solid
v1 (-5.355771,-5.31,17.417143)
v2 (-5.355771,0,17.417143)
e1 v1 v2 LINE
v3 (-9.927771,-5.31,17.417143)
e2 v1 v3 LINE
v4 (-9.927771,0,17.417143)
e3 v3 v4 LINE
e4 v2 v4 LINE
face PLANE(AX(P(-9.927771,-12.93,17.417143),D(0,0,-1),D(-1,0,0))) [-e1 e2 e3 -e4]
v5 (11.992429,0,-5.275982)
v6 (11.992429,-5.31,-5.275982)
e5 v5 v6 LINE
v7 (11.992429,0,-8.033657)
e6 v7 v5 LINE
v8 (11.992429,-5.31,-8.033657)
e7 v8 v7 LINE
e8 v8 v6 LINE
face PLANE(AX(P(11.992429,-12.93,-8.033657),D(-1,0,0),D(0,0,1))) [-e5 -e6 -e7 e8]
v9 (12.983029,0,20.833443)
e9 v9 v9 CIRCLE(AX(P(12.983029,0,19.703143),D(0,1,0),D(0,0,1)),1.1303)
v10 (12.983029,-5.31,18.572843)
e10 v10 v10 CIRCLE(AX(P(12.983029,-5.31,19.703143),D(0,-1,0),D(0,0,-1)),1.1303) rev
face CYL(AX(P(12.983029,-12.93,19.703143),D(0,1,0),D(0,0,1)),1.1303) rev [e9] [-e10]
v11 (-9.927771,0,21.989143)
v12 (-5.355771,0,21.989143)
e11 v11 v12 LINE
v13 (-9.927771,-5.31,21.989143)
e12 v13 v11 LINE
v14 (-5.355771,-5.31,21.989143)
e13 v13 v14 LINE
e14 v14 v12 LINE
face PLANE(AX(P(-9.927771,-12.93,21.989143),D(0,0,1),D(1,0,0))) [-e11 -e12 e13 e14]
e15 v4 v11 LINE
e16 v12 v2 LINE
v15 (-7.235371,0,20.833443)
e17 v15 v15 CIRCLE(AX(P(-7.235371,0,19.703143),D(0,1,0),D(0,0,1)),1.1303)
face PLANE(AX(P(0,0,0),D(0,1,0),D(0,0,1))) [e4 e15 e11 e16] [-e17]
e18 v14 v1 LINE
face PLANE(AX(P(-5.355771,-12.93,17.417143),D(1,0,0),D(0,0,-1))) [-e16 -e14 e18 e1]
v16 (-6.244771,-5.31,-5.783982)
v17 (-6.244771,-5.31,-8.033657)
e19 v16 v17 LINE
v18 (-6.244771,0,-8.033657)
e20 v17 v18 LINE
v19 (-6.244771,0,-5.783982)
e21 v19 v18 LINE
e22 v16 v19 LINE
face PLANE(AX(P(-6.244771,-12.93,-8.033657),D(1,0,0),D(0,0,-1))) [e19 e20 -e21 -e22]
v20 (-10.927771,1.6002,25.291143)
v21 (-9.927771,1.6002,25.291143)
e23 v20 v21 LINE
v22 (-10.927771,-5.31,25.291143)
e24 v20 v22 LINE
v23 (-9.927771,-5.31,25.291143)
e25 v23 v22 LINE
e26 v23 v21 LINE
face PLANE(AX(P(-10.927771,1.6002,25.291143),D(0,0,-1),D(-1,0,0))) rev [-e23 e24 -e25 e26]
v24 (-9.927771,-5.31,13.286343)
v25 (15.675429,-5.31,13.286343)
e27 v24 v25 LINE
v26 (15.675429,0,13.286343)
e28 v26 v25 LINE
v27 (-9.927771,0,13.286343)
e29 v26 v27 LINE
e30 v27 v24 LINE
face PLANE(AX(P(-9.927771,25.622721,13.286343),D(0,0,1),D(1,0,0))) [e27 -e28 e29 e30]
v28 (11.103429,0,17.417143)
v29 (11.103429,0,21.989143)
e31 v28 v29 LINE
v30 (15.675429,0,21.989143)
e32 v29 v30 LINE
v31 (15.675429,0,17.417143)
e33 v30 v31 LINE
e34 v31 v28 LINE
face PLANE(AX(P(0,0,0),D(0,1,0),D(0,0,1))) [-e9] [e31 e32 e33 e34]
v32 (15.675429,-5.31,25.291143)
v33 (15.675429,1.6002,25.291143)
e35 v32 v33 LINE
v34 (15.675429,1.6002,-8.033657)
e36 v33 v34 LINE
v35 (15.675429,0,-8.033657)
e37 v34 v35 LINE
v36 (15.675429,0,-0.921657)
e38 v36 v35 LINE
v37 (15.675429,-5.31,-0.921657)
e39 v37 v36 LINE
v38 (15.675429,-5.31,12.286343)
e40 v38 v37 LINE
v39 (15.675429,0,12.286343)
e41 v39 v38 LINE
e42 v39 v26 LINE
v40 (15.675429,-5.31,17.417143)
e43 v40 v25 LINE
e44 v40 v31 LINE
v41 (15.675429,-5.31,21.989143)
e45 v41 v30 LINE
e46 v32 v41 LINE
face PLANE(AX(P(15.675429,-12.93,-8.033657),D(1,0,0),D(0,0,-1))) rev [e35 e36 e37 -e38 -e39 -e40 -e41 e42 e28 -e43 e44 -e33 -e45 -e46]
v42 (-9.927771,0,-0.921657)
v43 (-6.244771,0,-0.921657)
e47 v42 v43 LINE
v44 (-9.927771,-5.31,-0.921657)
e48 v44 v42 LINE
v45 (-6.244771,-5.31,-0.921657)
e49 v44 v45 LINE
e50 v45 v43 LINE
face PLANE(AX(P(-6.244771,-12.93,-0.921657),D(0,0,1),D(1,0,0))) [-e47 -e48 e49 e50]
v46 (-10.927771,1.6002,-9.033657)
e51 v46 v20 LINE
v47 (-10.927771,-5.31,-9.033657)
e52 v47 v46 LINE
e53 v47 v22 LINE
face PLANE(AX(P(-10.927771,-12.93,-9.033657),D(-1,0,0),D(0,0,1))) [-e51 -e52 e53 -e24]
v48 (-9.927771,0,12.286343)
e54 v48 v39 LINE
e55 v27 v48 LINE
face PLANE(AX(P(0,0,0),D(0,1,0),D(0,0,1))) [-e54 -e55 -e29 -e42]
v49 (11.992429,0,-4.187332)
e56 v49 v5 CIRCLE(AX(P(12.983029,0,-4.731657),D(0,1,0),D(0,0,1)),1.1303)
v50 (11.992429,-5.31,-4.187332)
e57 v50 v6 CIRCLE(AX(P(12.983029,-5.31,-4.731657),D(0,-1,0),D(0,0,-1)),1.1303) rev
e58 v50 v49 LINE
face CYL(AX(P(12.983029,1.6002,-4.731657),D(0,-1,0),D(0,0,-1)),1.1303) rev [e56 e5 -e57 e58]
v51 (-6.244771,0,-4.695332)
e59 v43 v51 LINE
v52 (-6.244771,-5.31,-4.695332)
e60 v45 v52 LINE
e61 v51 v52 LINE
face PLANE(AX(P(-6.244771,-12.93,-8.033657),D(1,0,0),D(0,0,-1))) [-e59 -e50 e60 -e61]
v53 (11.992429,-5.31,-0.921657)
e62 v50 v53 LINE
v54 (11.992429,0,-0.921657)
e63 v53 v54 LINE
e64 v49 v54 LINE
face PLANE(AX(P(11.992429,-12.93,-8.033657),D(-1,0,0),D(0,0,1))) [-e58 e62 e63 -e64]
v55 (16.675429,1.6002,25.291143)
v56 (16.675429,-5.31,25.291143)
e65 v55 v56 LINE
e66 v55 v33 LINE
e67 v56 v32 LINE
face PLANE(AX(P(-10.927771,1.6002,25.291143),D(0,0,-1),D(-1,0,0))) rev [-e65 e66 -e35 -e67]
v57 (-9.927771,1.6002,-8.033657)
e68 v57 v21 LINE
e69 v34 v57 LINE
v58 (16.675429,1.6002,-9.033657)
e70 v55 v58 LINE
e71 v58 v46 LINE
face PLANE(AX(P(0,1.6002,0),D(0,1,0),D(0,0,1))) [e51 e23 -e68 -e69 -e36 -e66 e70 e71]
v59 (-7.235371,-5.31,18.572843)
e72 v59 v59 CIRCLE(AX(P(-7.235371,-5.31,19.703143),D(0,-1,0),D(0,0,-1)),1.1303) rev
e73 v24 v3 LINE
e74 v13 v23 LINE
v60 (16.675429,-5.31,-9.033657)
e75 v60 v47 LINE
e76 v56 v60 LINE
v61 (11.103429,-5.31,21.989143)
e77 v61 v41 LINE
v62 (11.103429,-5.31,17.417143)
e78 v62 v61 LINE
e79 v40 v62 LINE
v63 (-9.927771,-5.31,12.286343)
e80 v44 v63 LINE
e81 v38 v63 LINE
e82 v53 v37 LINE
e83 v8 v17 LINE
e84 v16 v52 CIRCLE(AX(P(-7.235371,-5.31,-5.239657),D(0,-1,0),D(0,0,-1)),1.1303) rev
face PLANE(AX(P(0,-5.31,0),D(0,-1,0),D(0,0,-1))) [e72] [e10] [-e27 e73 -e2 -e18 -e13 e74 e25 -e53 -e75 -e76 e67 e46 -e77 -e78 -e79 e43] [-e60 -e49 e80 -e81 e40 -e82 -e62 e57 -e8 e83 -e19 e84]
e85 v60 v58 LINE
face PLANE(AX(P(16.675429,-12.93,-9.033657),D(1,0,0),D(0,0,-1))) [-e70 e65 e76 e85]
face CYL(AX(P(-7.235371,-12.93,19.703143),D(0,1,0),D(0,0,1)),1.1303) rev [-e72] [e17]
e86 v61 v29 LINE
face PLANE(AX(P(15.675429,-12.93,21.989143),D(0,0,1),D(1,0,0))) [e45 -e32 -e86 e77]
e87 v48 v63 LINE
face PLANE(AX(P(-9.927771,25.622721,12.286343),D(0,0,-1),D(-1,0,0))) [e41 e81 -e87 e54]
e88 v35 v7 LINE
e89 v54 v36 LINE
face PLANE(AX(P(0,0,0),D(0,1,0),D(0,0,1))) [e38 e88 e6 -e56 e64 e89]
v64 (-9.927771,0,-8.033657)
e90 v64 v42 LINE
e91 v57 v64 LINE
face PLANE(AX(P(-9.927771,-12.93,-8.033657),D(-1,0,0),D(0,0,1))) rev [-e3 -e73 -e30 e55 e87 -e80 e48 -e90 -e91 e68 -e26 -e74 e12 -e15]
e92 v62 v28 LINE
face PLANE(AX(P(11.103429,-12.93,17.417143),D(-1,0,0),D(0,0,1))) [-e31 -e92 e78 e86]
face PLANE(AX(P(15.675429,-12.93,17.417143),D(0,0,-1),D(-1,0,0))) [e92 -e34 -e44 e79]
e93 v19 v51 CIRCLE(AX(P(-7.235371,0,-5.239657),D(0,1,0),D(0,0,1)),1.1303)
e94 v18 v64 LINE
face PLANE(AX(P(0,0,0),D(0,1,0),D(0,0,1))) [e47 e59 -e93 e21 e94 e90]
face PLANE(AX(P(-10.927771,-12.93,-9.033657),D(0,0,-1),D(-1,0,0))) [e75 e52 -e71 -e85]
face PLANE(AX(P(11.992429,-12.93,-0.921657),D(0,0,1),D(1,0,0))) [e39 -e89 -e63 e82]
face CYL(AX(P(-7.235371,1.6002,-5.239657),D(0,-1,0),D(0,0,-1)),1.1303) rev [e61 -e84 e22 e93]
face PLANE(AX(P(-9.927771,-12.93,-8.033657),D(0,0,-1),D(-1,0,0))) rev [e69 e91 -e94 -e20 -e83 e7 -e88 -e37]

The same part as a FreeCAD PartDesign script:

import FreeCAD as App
import Part
import Sketcher
from FreeCAD import Vector
Q = App.Units.Quantity


def add_polygon(sketch, points):
    """Adds a closed chain of lines whose ends are joined by coincident constraints."""
    first, n = sketch.GeometryCount, len(points)
    for a, b in zip(points, points[1:] + points[:1]):
        sketch.addGeometry(Part.LineSegment(App.Vector(*a, 0), App.Vector(*b, 0)), False)
    for i in range(n):
        sketch.addConstraint(Sketcher.Constraint("Coincident", first + i, 2, first + (i + 1) % n, 1))

doc = App.newDocument("Part")
body = doc.addObject("PartDesign::Body", "Body")

sketch1 = body.newObject("Sketcher::SketchObject", "Sketch")
sketch1.AttachmentSupport = (doc.getObject("XZ_Plane"), [""])
sketch1.MapMode = "FlatFace"
add_polygon(sketch1, [(-11, -9), (-11, 26), (17, 26), (17, -9)])
add_polygon(sketch1, [(16, 25), (-10, 25), (-10, -8), (16, -8)])
sketch1.addConstraint([
    Sketcher.Constraint("Vertical", 0),
    Sketcher.Constraint("Horizontal", 1),
    Sketcher.Constraint("Vertical", 2),
    Sketcher.Constraint("Horizontal", 3),
    Sketcher.Constraint("Horizontal", 4),
    Sketcher.Constraint("Vertical", 5),
    Sketcher.Constraint("Horizontal", 6),
    Sketcher.Constraint("Vertical", 7),
    Sketcher.Constraint("DistanceX", 4, 2, 4, 1, Q("1.008 in")),
    Sketcher.Constraint("DistanceY", 5, 2, 5, 1, Q("1.312 in")),
    Sketcher.Constraint("DistanceX", 1, 1, 1, 2, Q("27.6032 mm")),
    Sketcher.Constraint("DistanceY", 0, 1, 0, 2, Q("35.3248 mm")),
    Sketcher.Constraint("DistanceX", 0, 2, 4, 2, Q("1 mm")),
    Sketcher.Constraint("DistanceY", 4, 2, 0, 2, Q("1 mm")),
    Sketcher.Constraint("DistanceX", 0, 2, -1, 1, Q("10.927771 mm")),
    Sketcher.Constraint("DistanceY", -1, 1, 0, 2, Q("26.291143 mm")),
])
pad1 = body.newObject("PartDesign::Pad", "Pad")
pad1.Profile = sketch1
pad1.Length = 12.93

sketch2 = body.newObject("Sketcher::SketchObject", "Sketch001")
sketch2.AttachmentSupport = (doc.getObject("XZ_Plane"), [""])
sketch2.MapMode = "FlatFace"
sketch2.AttachmentOffset = App.Placement(Vector(0, 0, 12.93), App.Rotation())
add_polygon(sketch2, [(-17.3, 13.4), (-17.3, 3.9), (-10.9, 3.9), (-10.9, 13.4)])
sketch2.addGeometry(Part.Circle(Vector(-14.1, 8.6, 0), Vector(0, 0, 1), 1.5), False)
add_polygon(sketch2, [(16.7, 13.4), (16.7, 3.9), (23, 3.9), (23, 13.4)])
sketch2.addGeometry(Part.Circle(Vector(19.9, 8.6, 0), Vector(0, 0, 1), 1.5), False)
sketch2.addConstraint([
    Sketcher.Constraint("Vertical", 0),
    Sketcher.Constraint("Horizontal", 1),
    Sketcher.Constraint("Vertical", 2),
    Sketcher.Constraint("Horizontal", 3),
    Sketcher.Constraint("Vertical", 5),
    Sketcher.Constraint("Horizontal", 6),
    Sketcher.Constraint("Vertical", 7),
    Sketcher.Constraint("Horizontal", 8),
    Sketcher.Constraint("Equal", 4, 9),
    Sketcher.Constraint("Horizontal", 4, 3, 9, 3),
    Sketcher.Constraint("Horizontal", 1, 2, 5, 2),
    Sketcher.Constraint("Horizontal", 3, 2, 7, 2),
    Sketcher.Constraint("Equal", 3, 6),
    Sketcher.Constraint("Diameter", 4, Q("0.116 in")),
    Sketcher.Constraint("DistanceX", 1, 1, 1, 2, Q("0.25 in")),
    Sketcher.Constraint("DistanceY", 0, 2, 0, 1, Q("0.375 in")),
    Sketcher.Constraint("DistanceX", 0, 2, 4, 3, Q("0.125 in")),
    Sketcher.Constraint("DistanceY", 0, 2, 4, 3, Q("0.1875 in")),
    Sketcher.Constraint("DistanceX", 5, 2, 9, 3, Q("0.125 in")),
    Sketcher.Constraint("DistanceX", 4, 3, 9, 3, Q("33.9532 mm")),
    Sketcher.Constraint("DistanceX", 4, 3, -1, 1, Q("14.102771 mm")),
    Sketcher.Constraint("DistanceY", -1, 1, 4, 3, Q("8.628743 mm")),
])
pad2 = body.newObject("PartDesign::Pad", "Pad001")
pad2.Profile = sketch2
pad2.Length = Q("0.0625 in")
pad2.Reversed = True

sketch3 = body.newObject("Sketcher::SketchObject", "Sketch002")
sketch3.AttachmentSupport = (doc.getObject("XZ_Plane"), [""])
sketch3.MapMode = "FlatFace"
add_polygon(sketch3, [(-9.9, -8), (-9.9, -0.9), (-6.2, -0.9), (-6.2, -8)])
add_polygon(sketch3, [(12, -8), (12, -0.9), (15.7, -0.9), (15.7, -8)])
add_polygon(sketch3, [(-9.9, 17.4), (-9.9, 22), (-5.4, 22), (-5.4, 17.4)])
sketch3.addGeometry(Part.Circle(Vector(-7.2, 19.7, 0), Vector(0, 0, 1), 1.1), False)
add_polygon(sketch3, [(11.1, 17.4), (11.1, 22), (15.7, 22), (15.7, 17.4)])
sketch3.addGeometry(Part.Circle(Vector(13, 19.7, 0), Vector(0, 0, 1), 1.1), False)
sketch3.addConstraint([
    Sketcher.Constraint("Vertical", 0),
    Sketcher.Constraint("Horizontal", 1),
    Sketcher.Constraint("Vertical", 2),
    Sketcher.Constraint("Horizontal", 3),
    Sketcher.Constraint("Vertical", 4),
    Sketcher.Constraint("Horizontal", 5),
    Sketcher.Constraint("Vertical", 6),
    Sketcher.Constraint("Horizontal", 7),
    Sketcher.Constraint("Vertical", 8),
    Sketcher.Constraint("Horizontal", 9),
    Sketcher.Constraint("Vertical", 10),
    Sketcher.Constraint("Horizontal", 11),
    Sketcher.Constraint("Vertical", 13),
    Sketcher.Constraint("Horizontal", 14),
    Sketcher.Constraint("Vertical", 15),
    Sketcher.Constraint("Horizontal", 16),
    Sketcher.Constraint("Equal", 12, 17),
    Sketcher.Constraint("Horizontal", 12, 3, 17, 3),
    Sketcher.Constraint("Horizontal", 1, 2, 4, 2),
    Sketcher.Constraint("Horizontal", 3, 2, 6, 2),
    Sketcher.Constraint("Horizontal", 9, 2, 13, 2),
    Sketcher.Constraint("Horizontal", 11, 2, 15, 2),
    Sketcher.Constraint("Vertical", 3, 2, 8, 2),
    Sketcher.Constraint("Vertical", 6, 2, 14, 2),
    Sketcher.Constraint("Equal", 3, 5),
    Sketcher.Constraint("Equal", 11, 14),
    Sketcher.Constraint("Equal", 16, 8),
    Sketcher.Constraint("Diameter", 12, Q("0.089 in")),
    Sketcher.Constraint("DistanceX", 9, 1, 9, 2, Q("0.18 in")),
    Sketcher.Constraint("DistanceY", 0, 1, 0, 2, Q("0.28 in")),
    Sketcher.Constraint("DistanceX", 1, 1, 1, 2, Q("0.145 in")),
    Sketcher.Constraint("DistanceY", 12, 3, 8, 2, Q("0.09 in")),
    Sketcher.Constraint("DistanceX", 12, 3, 17, 3, Q("0.796 in")),
    Sketcher.Constraint("DistanceX", 0, 2, 12, 3, Q("0.106 in")),
    Sketcher.Constraint("DistanceY", 0, 2, 12, 3, Q("0.812 in")),
    Sketcher.Constraint("DistanceX", 1, 2, 4, 2, Q("0.718 in")),
    Sketcher.Constraint("DistanceX", 12, 3, -1, 1, Q("7.235371 mm")),
    Sketcher.Constraint("DistanceY", -1, 1, 12, 3, Q("19.703143 mm")),
])
pad3 = body.newObject("PartDesign::Pad", "Pad002")
pad3.Profile = sketch3
pad3.Length = 12.93

sketch4 = body.newObject("Sketcher::SketchObject", "Sketch003")
sketch4.AttachmentSupport = (doc.getObject("XZ_Plane"), [""])
sketch4.MapMode = "FlatFace"
add_polygon(sketch4, [(-11, -9), (-11, 26), (17, 26), (17, -9)])
add_polygon(sketch4, [(16, 25), (-10, 25), (-10, -8), (16, -8)])
sketch4.addConstraint([
    Sketcher.Constraint("Vertical", 0),
    Sketcher.Constraint("Horizontal", 1),
    Sketcher.Constraint("Vertical", 2),
    Sketcher.Constraint("Horizontal", 3),
    Sketcher.Constraint("Horizontal", 4),
    Sketcher.Constraint("Vertical", 5),
    Sketcher.Constraint("Horizontal", 6),
    Sketcher.Constraint("Vertical", 7),
    Sketcher.Constraint("DistanceX", 4, 2, 4, 1, Q("1.008 in")),
    Sketcher.Constraint("DistanceY", 5, 2, 5, 1, Q("1.312 in")),
    Sketcher.Constraint("DistanceX", 1, 1, 1, 2, Q("27.6032 mm")),
    Sketcher.Constraint("DistanceY", 0, 1, 0, 2, Q("35.3248 mm")),
    Sketcher.Constraint("DistanceX", 0, 2, 4, 2, Q("1 mm")),
    Sketcher.Constraint("DistanceY", 4, 2, 0, 2, Q("1 mm")),
    Sketcher.Constraint("DistanceX", 0, 2, -1, 1, Q("10.927771 mm")),
    Sketcher.Constraint("DistanceY", -1, 1, 0, 2, Q("26.291143 mm")),
])
pad4 = body.newObject("PartDesign::Pad", "Pad003")
pad4.Profile = sketch4
pad4.Length = Q("0.063 in")
pad4.Reversed = True

sketch5 = body.newObject("Sketcher::SketchObject", "Sketch004")
sketch5.AttachmentSupport = (doc.getObject("XZ_Plane"), [""])
sketch5.MapMode = "FlatFace"
sketch5.AttachmentOffset = App.Placement(Vector(0, 0, 12.93), App.Rotation())
sketch5.addGeometry([
    Part.Circle(Vector(-7.2, -5.2, 0), Vector(0, 0, 1), 1.1),
    Part.Circle(Vector(13, -4.7, 0), Vector(0, 0, 1), 1.1),
], False)
sketch5.addConstraint([
    Sketcher.Constraint("Equal", 0, 1),
    Sketcher.Constraint("Diameter", 0, Q("0.089 in")),
    Sketcher.Constraint("DistanceY", 0, 3, 1, 3, Q("0.02 in")),
    Sketcher.Constraint("DistanceX", 0, 3, 1, 3, Q("0.796 in")),
    Sketcher.Constraint("DistanceX", 0, 3, -1, 1, Q("7.235371 mm")),
    Sketcher.Constraint("DistanceY", 0, 3, -1, 1, Q("5.239657 mm")),
])
pocket1 = body.newObject("PartDesign::Pocket", "Pocket")
pocket1.Profile = sketch5
pocket1.Type = "ThroughAll"

sketch6 = body.newObject("Sketcher::SketchObject", "Sketch005")
sketch6.AttachmentSupport = (doc.getObject("XZ_Plane"), [""])
sketch6.MapMode = "FlatFace"
sketch6.AttachmentOffset = App.Placement(Vector(0, 0, 12.93), App.Rotation())
add_polygon(sketch6, [(-9.9, 13.3), (-9.9, 12.3), (15.7, 12.3), (15.7, 13.3)])
sketch6.addConstraint([
    Sketcher.Constraint("Vertical", 0),
    Sketcher.Constraint("Horizontal", 1),
    Sketcher.Constraint("Vertical", 2),
    Sketcher.Constraint("Horizontal", 3),
    Sketcher.Constraint("DistanceX", 1, 1, 1, 2, Q("1.008 in")),
    Sketcher.Constraint("DistanceY", 0, 2, 0, 1, Q("1 mm")),
    Sketcher.Constraint("DistanceX", 0, 2, -1, 1, Q("9.927771 mm")),
    Sketcher.Constraint("DistanceY", -1, 1, 0, 2, Q("12.286343 mm")),
])
pad5 = body.newObject("PartDesign::Pad", "Pad004")
pad5.Profile = sketch6
pad5.Length = 12.93
pad5.Reversed = True

sketch7 = body.newObject("Sketcher::SketchObject", "Sketch006")
sketch7.AttachmentSupport = (doc.getObject("XZ_Plane"), [""])
sketch7.MapMode = "FlatFace"
sketch7.AttachmentOffset = App.Placement(Vector(0, 0, 12.93), App.Rotation())
add_polygon(sketch7, [(-10.9, 26.3), (-10.9, 25.3), (16.7, 25.3), (16.7, 26.3)])
sketch7.addConstraint([
    Sketcher.Constraint("Vertical", 0),
    Sketcher.Constraint("Horizontal", 1),
    Sketcher.Constraint("Vertical", 2),
    Sketcher.Constraint("Horizontal", 3),
    Sketcher.Constraint("DistanceX", 1, 1, 1, 2, Q("27.6032 mm")),
    Sketcher.Constraint("DistanceY", 0, 2, 0, 1, Q("1 mm")),
    Sketcher.Constraint("DistanceX", 0, 2, -1, 1, Q("10.927771 mm")),
    Sketcher.Constraint("DistanceY", -1, 1, 0, 2, Q("25.291143 mm")),
])
pocket2 = body.newObject("PartDesign::Pocket", "Pocket001")
pocket2.Profile = sketch7
pocket2.Type = "ThroughAll"

sketch8 = body.newObject("Sketcher::SketchObject", "Sketch007")
sketch8.AttachmentSupport = (doc.getObject("XZ_Plane"), [""])
sketch8.MapMode = "FlatFace"
sketch8.AttachmentOffset = App.Placement(Vector(0, 0, 12.93), App.Rotation())
add_polygon(sketch8, [(-21, 26), (-21, -10), (26, -10), (26, 26)])
sketch8.addConstraint([
    Sketcher.Constraint("Vertical", 0),
    Sketcher.Constraint("Horizontal", 1),
    Sketcher.Constraint("Vertical", 2),
    Sketcher.Constraint("Horizontal", 3),
    Sketcher.Constraint("DistanceX", 1, 1, 1, 2, Q("47.196128 mm")),
    Sketcher.Constraint("DistanceY", 0, 2, 0, 1, Q("36.476204 mm")),
    Sketcher.Constraint("DistanceX", 0, 2, -1, 1, Q("20.985119 mm")),
    Sketcher.Constraint("DistanceY", -1, 1, 2, 2, Q("26.319411 mm")),
])
pocket3 = body.newObject("PartDesign::Pocket", "Pocket002")
pocket3.Profile = sketch8
pocket3.Length = Q("0.3 in")

doc.recompute()
